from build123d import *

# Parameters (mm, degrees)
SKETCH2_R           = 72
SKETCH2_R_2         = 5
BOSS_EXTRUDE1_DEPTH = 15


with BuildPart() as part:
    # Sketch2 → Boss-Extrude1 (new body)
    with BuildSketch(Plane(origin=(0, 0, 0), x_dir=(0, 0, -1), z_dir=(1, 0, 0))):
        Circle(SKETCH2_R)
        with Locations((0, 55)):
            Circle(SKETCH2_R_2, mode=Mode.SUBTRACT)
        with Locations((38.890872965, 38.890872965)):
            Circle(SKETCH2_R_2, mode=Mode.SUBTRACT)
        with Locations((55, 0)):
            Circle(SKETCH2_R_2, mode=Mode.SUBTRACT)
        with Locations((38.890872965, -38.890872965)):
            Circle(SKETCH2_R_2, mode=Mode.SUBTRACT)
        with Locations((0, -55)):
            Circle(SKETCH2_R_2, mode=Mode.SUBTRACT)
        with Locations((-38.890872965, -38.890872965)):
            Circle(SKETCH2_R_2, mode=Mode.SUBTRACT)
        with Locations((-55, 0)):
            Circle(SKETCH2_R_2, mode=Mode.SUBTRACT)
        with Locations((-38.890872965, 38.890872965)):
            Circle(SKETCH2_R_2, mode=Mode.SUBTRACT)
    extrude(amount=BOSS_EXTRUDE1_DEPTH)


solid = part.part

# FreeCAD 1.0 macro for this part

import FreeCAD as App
import Part
import Sketcher
from FreeCAD import Vector

doc = App.newDocument("Part")
body = doc.addObject("PartDesign::Body", "Body")

# Sketch on YZ plane
sketch1 = doc.addObject("Sketcher::SketchObject", "Sketch")
body.addObject(sketch1)
sketch1.AttachmentSupport = (doc.YZ_Plane, [""])
sketch1.MapMode = "FlatFace"
sketch1.addGeometry([
    Part.Circle(Vector(0, 0, 0), Vector(0, 0, 1), 72),  # 0
    Part.Circle(Vector(-38.890873, 38.890873, 0), Vector(0, 0, 1), 5),  # 1
    Part.Circle(Vector(-55, 0, 0), Vector(0, 0, 1), 5),  # 2
    Part.Circle(Vector(-38.890873, -38.890873, 0), Vector(0, 0, 1), 5),  # 3
    Part.Circle(Vector(0, 55, 0), Vector(0, 0, 1), 5),  # 4
    Part.Circle(Vector(38.890873, 38.890873, 0), Vector(0, 0, 1), 5),  # 5
    Part.Circle(Vector(0, -55, 0), Vector(0, 0, 1), 5),  # 6
    Part.Circle(Vector(55, 0, 0), Vector(0, 0, 1), 5),  # 7
    Part.Circle(Vector(38.890873, -38.890873, 0), Vector(0, 0, 1), 5),  # 8
], False)
sketch1.addConstraint([
    Sketcher.Constraint("Coincident", 0, 3, -1, 1),
    Sketcher.Constraint("Equal", 1, 2),
    Sketcher.Constraint("Equal", 2, 3),
    Sketcher.Constraint("Equal", 3, 4),
    Sketcher.Constraint("Equal", 4, 5),
    Sketcher.Constraint("Equal", 5, 6),
    Sketcher.Constraint("Equal", 6, 7),
    Sketcher.Constraint("Equal", 7, 8),
    Sketcher.Constraint("Symmetric", 3, 3, 5, 3, -1, 1),
    Sketcher.Constraint("Symmetric", 4, 3, 6, 3, -1, 1),
    Sketcher.Constraint("Symmetric", 2, 3, 7, 3, -1, 1),
    Sketcher.Constraint("Symmetric", 1, 3, 8, 3, -1, 1),
    Sketcher.Constraint("Symmetric", 1, 3, 5, 3, -2),
    Sketcher.Constraint("PointOnObject", 2, 3, -1),
    Sketcher.Constraint("PointOnObject", 4, 3, -2),
    Sketcher.Constraint("Diameter", 0, 144.0),
    Sketcher.Constraint("Diameter", 1, 10.0),
    Sketcher.Constraint("DistanceX", 2, 3, -1, 1, 55.0),
    Sketcher.Constraint("DistanceY", -1, 1, 4, 3, 55.0),
    Sketcher.Constraint("DistanceX", 1, 3, -1, 1, 38.890873),
    Sketcher.Constraint("DistanceY", -1, 1, 1, 3, 38.890873),
])
pad1 = doc.addObject("PartDesign::Pad", "Pad")
body.addObject(pad1)
pad1.Profile = sketch1
pad1.Length = 15

doc.recompute()
